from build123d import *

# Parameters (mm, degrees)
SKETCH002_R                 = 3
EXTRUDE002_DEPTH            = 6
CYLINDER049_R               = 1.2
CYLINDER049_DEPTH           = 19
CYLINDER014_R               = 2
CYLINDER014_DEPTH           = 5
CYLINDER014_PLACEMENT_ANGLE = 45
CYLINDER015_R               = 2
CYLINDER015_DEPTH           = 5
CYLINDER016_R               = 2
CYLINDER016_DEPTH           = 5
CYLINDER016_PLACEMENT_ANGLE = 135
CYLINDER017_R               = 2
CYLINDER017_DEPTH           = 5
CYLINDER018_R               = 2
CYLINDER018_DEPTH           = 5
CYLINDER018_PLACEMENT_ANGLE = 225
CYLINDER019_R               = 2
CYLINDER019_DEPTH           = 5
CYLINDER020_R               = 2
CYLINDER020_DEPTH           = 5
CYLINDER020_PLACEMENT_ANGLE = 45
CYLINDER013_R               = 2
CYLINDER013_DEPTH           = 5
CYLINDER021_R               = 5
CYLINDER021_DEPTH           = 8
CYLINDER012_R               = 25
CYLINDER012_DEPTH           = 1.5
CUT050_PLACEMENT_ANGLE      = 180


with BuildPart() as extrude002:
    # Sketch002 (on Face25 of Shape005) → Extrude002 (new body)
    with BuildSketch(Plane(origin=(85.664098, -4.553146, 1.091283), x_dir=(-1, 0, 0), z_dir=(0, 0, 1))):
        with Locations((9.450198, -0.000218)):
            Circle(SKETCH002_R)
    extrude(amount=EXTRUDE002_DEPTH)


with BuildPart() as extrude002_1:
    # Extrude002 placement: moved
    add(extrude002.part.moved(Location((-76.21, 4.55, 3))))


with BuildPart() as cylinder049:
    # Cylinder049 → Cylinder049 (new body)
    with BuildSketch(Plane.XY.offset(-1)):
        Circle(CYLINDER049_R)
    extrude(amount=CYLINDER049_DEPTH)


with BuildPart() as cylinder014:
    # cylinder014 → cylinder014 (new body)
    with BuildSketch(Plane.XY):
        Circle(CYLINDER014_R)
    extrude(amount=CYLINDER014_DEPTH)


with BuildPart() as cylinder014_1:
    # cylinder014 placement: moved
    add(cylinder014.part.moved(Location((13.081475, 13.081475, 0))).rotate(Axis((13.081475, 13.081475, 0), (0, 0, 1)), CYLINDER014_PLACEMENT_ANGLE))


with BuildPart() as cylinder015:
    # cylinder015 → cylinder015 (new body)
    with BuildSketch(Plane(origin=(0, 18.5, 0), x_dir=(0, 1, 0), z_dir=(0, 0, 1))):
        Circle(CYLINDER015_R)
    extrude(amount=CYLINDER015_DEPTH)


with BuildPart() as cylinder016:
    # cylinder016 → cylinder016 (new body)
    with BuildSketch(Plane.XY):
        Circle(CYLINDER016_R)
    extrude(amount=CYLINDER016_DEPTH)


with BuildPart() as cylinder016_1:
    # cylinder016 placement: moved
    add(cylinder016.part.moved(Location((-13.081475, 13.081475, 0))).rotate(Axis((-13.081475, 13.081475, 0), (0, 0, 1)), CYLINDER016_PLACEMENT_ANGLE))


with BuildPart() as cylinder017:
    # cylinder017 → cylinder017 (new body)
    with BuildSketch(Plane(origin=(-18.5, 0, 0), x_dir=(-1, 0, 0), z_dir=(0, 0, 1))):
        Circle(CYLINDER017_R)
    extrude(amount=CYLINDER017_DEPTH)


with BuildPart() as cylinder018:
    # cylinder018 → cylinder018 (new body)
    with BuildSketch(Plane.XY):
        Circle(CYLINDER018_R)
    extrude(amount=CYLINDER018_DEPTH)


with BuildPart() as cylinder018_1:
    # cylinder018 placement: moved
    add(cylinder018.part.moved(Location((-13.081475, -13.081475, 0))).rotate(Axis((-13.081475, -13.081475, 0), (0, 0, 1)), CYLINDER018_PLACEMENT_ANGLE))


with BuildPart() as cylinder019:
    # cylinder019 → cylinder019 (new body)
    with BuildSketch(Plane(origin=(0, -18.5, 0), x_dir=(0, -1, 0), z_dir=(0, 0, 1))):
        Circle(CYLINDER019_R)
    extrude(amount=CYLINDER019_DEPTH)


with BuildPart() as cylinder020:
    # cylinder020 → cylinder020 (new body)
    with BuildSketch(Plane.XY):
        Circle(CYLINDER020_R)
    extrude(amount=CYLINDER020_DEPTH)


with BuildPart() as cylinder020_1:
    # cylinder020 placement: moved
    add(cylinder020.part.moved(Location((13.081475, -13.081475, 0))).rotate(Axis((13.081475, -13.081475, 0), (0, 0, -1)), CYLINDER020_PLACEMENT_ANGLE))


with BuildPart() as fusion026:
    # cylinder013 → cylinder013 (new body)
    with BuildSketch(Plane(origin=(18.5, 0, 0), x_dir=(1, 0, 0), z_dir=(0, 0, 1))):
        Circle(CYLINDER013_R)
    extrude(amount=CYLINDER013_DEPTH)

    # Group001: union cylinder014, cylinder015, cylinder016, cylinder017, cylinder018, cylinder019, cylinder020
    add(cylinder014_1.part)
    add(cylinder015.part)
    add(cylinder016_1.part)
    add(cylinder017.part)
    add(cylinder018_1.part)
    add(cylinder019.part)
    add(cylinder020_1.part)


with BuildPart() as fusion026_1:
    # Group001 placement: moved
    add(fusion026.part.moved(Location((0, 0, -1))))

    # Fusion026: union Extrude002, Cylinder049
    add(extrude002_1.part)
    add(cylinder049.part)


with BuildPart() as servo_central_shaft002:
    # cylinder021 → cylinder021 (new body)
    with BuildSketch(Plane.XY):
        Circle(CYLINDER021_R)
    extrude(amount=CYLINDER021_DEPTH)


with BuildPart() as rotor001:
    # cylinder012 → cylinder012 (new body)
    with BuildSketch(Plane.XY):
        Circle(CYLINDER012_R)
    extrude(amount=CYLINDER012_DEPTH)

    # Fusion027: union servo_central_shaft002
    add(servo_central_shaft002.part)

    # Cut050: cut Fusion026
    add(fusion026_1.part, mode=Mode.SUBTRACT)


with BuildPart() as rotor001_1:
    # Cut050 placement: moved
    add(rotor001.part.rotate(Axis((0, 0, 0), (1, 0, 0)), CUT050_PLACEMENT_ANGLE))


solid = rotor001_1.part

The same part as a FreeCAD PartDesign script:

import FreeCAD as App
import Part
import Sketcher
Q = App.Units.Quantity

doc = App.newDocument("Part")
body = doc.addObject("PartDesign::Body", "Body")

# Sketch on XY plane
sketch1 = doc.addObject("Sketcher::SketchObject", "Sketch")
body.addObject(sketch1)
sketch1.AttachmentSupport = (doc.XY_Plane, [""])
sketch1.MapMode = "FlatFace"
sketch1.AttachmentOffset = App.Placement(App.Vector(0, 0, 1.091283), App.Rotation())
sketch1.addGeometry(Part.Circle(App.Vector(76.2139, -4.552928, 0), App.Vector(0, 0, 1), 3), False)
sketch1.addConstraint([
    Sketcher.Constraint("Diameter", 0, Q("6 mm")),
    Sketcher.Constraint("DistanceX", -1, 1, 0, 3, Q("76.2139 mm")),
    Sketcher.Constraint("DistanceY", 0, 3, -1, 1, Q("4.552928 mm")),
])
pad1 = doc.addObject("PartDesign::Pad", "Pad")
body.addObject(pad1)
pad1.Profile = sketch1
pad1.Length = 6
body2 = doc.addObject("PartDesign::Body", "Body001")
doc.recompute()

body.Placement = App.Placement(App.Vector(-76.21, 4.55, 3), App.Rotation(App.Vector(0, 0, 1), 0))
boolean = doc.addObject("PartDesign::Boolean", "Boolean")
body2.addObject(boolean)
boolean.Type = "Fuse"
boolean.addObjects([body])
body3 = doc.addObject("PartDesign::Body", "Body002")

# Sketch on XY plane
sketch2 = doc.addObject("Sketcher::SketchObject", "Sketch001")
body3.addObject(sketch2)
sketch2.AttachmentSupport = (doc.getObject("XY_Plane002"), [""])
sketch2.MapMode = "FlatFace"
sketch2.AttachmentOffset = App.Placement(App.Vector(0, 0, -1), App.Rotation())
sketch2.addGeometry(Part.Circle(App.Vector(0, 0, 0), App.Vector(0, 0, 1), 1.2), False)
sketch2.addConstraint([
    Sketcher.Constraint("Coincident", 0, 3, -1, 1),
    Sketcher.Constraint("Diameter", 0, Q("2.4 mm")),
])
pad2 = doc.addObject("PartDesign::Pad", "Pad001")
body3.addObject(pad2)
pad2.Profile = sketch2
pad2.Length = 19
body4 = doc.addObject("PartDesign::Body", "Body003")

# Sketch on XY plane
sketch3 = doc.addObject("Sketcher::SketchObject", "Sketch002")
body4.addObject(sketch3)
sketch3.AttachmentSupport = (doc.getObject("XY_Plane003"), [""])
sketch3.MapMode = "FlatFace"
sketch3.addGeometry(Part.Circle(App.Vector(0, 0, 0), App.Vector(0, 0, 1), 2), False)
sketch3.addConstraint([
    Sketcher.Constraint("Coincident", 0, 3, -1, 1),
    Sketcher.Constraint("Diameter", 0, Q("4 mm")),
])
pad3 = doc.addObject("PartDesign::Pad", "Pad002")
body4.addObject(pad3)
pad3.Profile = sketch3
pad3.Length = 5
body5 = doc.addObject("PartDesign::Body", "Body004")
doc.recompute()

body4.Placement = App.Placement(App.Vector(13.081475, 13.081475, 0), App.Rotation(App.Vector(0, 0, 1), 45))
boolean2 = doc.addObject("PartDesign::Boolean", "Boolean001")
body5.addObject(boolean2)
boolean2.Type = "Fuse"
boolean2.addObjects([body4])
body6 = doc.addObject("PartDesign::Body", "Body005")

# Sketch on XY plane
sketch4 = doc.addObject("Sketcher::SketchObject", "Sketch003")
body6.addObject(sketch4)
sketch4.AttachmentSupport = (doc.getObject("XY_Plane005"), [""])
sketch4.MapMode = "FlatFace"
sketch4.addGeometry(Part.Circle(App.Vector(0, 18.5, 0), App.Vector(0, 0, 1), 2), False)
sketch4.addConstraint([
    Sketcher.Constraint("PointOnObject", 0, 3, -2),
    Sketcher.Constraint("Diameter", 0, Q("4 mm")),
    Sketcher.Constraint("DistanceY", -1, 1, 0, 3, Q("18.5 mm")),
])
pad4 = doc.addObject("PartDesign::Pad", "Pad003")
body6.addObject(pad4)
pad4.Profile = sketch4
pad4.Length = 5
body7 = doc.addObject("PartDesign::Body", "Body006")

# Sketch on XY plane
sketch5 = doc.addObject("Sketcher::SketchObject", "Sketch004")
body7.addObject(sketch5)
sketch5.AttachmentSupport = (doc.getObject("XY_Plane006"), [""])
sketch5.MapMode = "FlatFace"
sketch5.addGeometry(Part.Circle(App.Vector(0, 0, 0), App.Vector(0, 0, 1), 2), False)
sketch5.addConstraint([
    Sketcher.Constraint("Coincident", 0, 3, -1, 1),
    Sketcher.Constraint("Diameter", 0, Q("4 mm")),
])
pad5 = doc.addObject("PartDesign::Pad", "Pad004")
body7.addObject(pad5)
pad5.Profile = sketch5
pad5.Length = 5
body8 = doc.addObject("PartDesign::Body", "Body007")
doc.recompute()

body7.Placement = App.Placement(App.Vector(-13.081475, 13.081475, 0), App.Rotation(App.Vector(0, 0, 1), 135))
boolean3 = doc.addObject("PartDesign::Boolean", "Boolean002")
body8.addObject(boolean3)
boolean3.Type = "Fuse"
boolean3.addObjects([body7])
body9 = doc.addObject("PartDesign::Body", "Body008")

# Sketch on XY plane
sketch6 = doc.addObject("Sketcher::SketchObject", "Sketch005")
body9.addObject(sketch6)
sketch6.AttachmentSupport = (doc.getObject("XY_Plane008"), [""])
sketch6.MapMode = "FlatFace"
sketch6.addGeometry(Part.Circle(App.Vector(-18.5, 0, 0), App.Vector(0, 0, 1), 2), False)
sketch6.addConstraint([
    Sketcher.Constraint("PointOnObject", 0, 3, -1),
    Sketcher.Constraint("Diameter", 0, Q("4 mm")),
    Sketcher.Constraint("DistanceX", 0, 3, -1, 1, Q("18.5 mm")),
])
pad6 = doc.addObject("PartDesign::Pad", "Pad005")
body9.addObject(pad6)
pad6.Profile = sketch6
pad6.Length = 5
body10 = doc.addObject("PartDesign::Body", "Body009")

# Sketch on XY plane
sketch7 = doc.addObject("Sketcher::SketchObject", "Sketch006")
body10.addObject(sketch7)
sketch7.AttachmentSupport = (doc.getObject("XY_Plane009"), [""])
sketch7.MapMode = "FlatFace"
sketch7.addGeometry(Part.Circle(App.Vector(0, 0, 0), App.Vector(0, 0, 1), 2), False)
sketch7.addConstraint([
    Sketcher.Constraint("Coincident", 0, 3, -1, 1),
    Sketcher.Constraint("Diameter", 0, Q("4 mm")),
])
pad7 = doc.addObject("PartDesign::Pad", "Pad006")
body10.addObject(pad7)
pad7.Profile = sketch7
pad7.Length = 5
body11 = doc.addObject("PartDesign::Body", "Body010")
doc.recompute()

body10.Placement = App.Placement(App.Vector(-13.081475, -13.081475, 0), App.Rotation(App.Vector(0, 0, 1), 225))
boolean4 = doc.addObject("PartDesign::Boolean", "Boolean003")
body11.addObject(boolean4)
boolean4.Type = "Fuse"
boolean4.addObjects([body10])
body12 = doc.addObject("PartDesign::Body", "Body011")

# Sketch on XY plane
sketch8 = doc.addObject("Sketcher::SketchObject", "Sketch007")
body12.addObject(sketch8)
sketch8.AttachmentSupport = (doc.getObject("XY_Plane011"), [""])
sketch8.MapMode = "FlatFace"
sketch8.addGeometry(Part.Circle(App.Vector(0, -18.5, 0), App.Vector(0, 0, 1), 2), False)
sketch8.addConstraint([
    Sketcher.Constraint("PointOnObject", 0, 3, -2),
    Sketcher.Constraint("Diameter", 0, Q("4 mm")),
    Sketcher.Constraint("DistanceY", 0, 3, -1, 1, Q("18.5 mm")),
])
pad8 = doc.addObject("PartDesign::Pad", "Pad007")
body12.addObject(pad8)
pad8.Profile = sketch8
pad8.Length = 5
body13 = doc.addObject("PartDesign::Body", "Body012")

# Sketch on XY plane
sketch9 = doc.addObject("Sketcher::SketchObject", "Sketch008")
body13.addObject(sketch9)
sketch9.AttachmentSupport = (doc.getObject("XY_Plane012"), [""])
sketch9.MapMode = "FlatFace"
sketch9.addGeometry(Part.Circle(App.Vector(0, 0, 0), App.Vector(0, 0, 1), 2), False)
sketch9.addConstraint([
    Sketcher.Constraint("Coincident", 0, 3, -1, 1),
    Sketcher.Constraint("Diameter", 0, Q("4 mm")),
])
pad9 = doc.addObject("PartDesign::Pad", "Pad008")
body13.addObject(pad9)
pad9.Profile = sketch9
pad9.Length = 5
body14 = doc.addObject("PartDesign::Body", "Body013")
doc.recompute()

body13.Placement = App.Placement(App.Vector(13.081475, -13.081475, 0), App.Rotation(App.Vector(0, 0, -1), 45))
boolean5 = doc.addObject("PartDesign::Boolean", "Boolean004")
body14.addObject(boolean5)
boolean5.Type = "Fuse"
boolean5.addObjects([body13])
body15 = doc.addObject("PartDesign::Body", "Body014")
body15.AllowCompound = True

# Sketch on XY plane
sketch10 = doc.addObject("Sketcher::SketchObject", "Sketch009")
body15.addObject(sketch10)
sketch10.AttachmentSupport = (doc.getObject("XY_Plane014"), [""])
sketch10.MapMode = "FlatFace"
sketch10.addGeometry(Part.Circle(App.Vector(18.5, 0, 0), App.Vector(0, 0, 1), 2), False)
sketch10.addConstraint([
    Sketcher.Constraint("PointOnObject", 0, 3, -1),
    Sketcher.Constraint("Diameter", 0, Q("4 mm")),
    Sketcher.Constraint("DistanceX", -1, 1, 0, 3, Q("18.5 mm")),
])
pad10 = doc.addObject("PartDesign::Pad", "Pad009")
body15.addObject(pad10)
pad10.Profile = sketch10
pad10.Length = 5
doc.recompute()

boolean6 = doc.addObject("PartDesign::Boolean", "Boolean005")
body15.addObject(boolean6)
boolean6.Type = "Fuse"
boolean6.addObjects([body5])
doc.recompute()

boolean7 = doc.addObject("PartDesign::Boolean", "Boolean006")
body15.addObject(boolean7)
boolean7.Type = "Fuse"
boolean7.addObjects([body6])
doc.recompute()

boolean8 = doc.addObject("PartDesign::Boolean", "Boolean007")
body15.addObject(boolean8)
boolean8.Type = "Fuse"
boolean8.addObjects([body8])
doc.recompute()

boolean9 = doc.addObject("PartDesign::Boolean", "Boolean008")
body15.addObject(boolean9)
boolean9.Type = "Fuse"
boolean9.addObjects([body9])
doc.recompute()

boolean10 = doc.addObject("PartDesign::Boolean", "Boolean009")
body15.addObject(boolean10)
boolean10.Type = "Fuse"
boolean10.addObjects([body11])
doc.recompute()

boolean11 = doc.addObject("PartDesign::Boolean", "Boolean010")
body15.addObject(boolean11)
boolean11.Type = "Fuse"
boolean11.addObjects([body12])
doc.recompute()

boolean12 = doc.addObject("PartDesign::Boolean", "Boolean011")
body15.addObject(boolean12)
boolean12.Type = "Fuse"
boolean12.addObjects([body14])
body16 = doc.addObject("PartDesign::Body", "Body015")
body16.AllowCompound = True
doc.recompute()

body15.Placement = App.Placement(App.Vector(0, 0, -1), App.Rotation(App.Vector(0, 0, 1), 0))
boolean13 = doc.addObject("PartDesign::Boolean", "Boolean012")
body16.addObject(boolean13)
boolean13.Type = "Fuse"
boolean13.addObjects([body15])
doc.recompute()

boolean14 = doc.addObject("PartDesign::Boolean", "Boolean013")
body16.addObject(boolean14)
boolean14.Type = "Fuse"
boolean14.addObjects([body2])
doc.recompute()

boolean15 = doc.addObject("PartDesign::Boolean", "Boolean014")
body16.addObject(boolean15)
boolean15.Type = "Fuse"
boolean15.addObjects([body3])
body17 = doc.addObject("PartDesign::Body", "Body016")

# Sketch on XY plane
sketch11 = doc.addObject("Sketcher::SketchObject", "Sketch010")
body17.addObject(sketch11)
sketch11.AttachmentSupport = (doc.getObject("XY_Plane016"), [""])
sketch11.MapMode = "FlatFace"
sketch11.addGeometry(Part.Circle(App.Vector(0, 0, 0), App.Vector(0, 0, 1), 5), False)
sketch11.addConstraint([
    Sketcher.Constraint("Coincident", 0, 3, -1, 1),
    Sketcher.Constraint("Diameter", 0, Q("10 mm")),
])
pad11 = doc.addObject("PartDesign::Pad", "Pad010")
body17.addObject(pad11)
pad11.Profile = sketch11
pad11.Length = 8
body18 = doc.addObject("PartDesign::Body", "Body017")

# Sketch on XY plane
sketch12 = doc.addObject("Sketcher::SketchObject", "Sketch011")
body18.addObject(sketch12)
sketch12.AttachmentSupport = (doc.getObject("XY_Plane017"), [""])
sketch12.MapMode = "FlatFace"
sketch12.addGeometry(Part.Circle(App.Vector(0, 0, 0), App.Vector(0, 0, 1), 25), False)
sketch12.addConstraint([
    Sketcher.Constraint("Coincident", 0, 3, -1, 1),
    Sketcher.Constraint("Diameter", 0, Q("50 mm")),
])
pad12 = doc.addObject("PartDesign::Pad", "Pad011")
body18.addObject(pad12)
pad12.Profile = sketch12
pad12.Length = 1.5
doc.recompute()

boolean16 = doc.addObject("PartDesign::Boolean", "Boolean015")
body18.addObject(boolean16)
boolean16.Type = "Fuse"
boolean16.addObjects([body17])
doc.recompute()

boolean17 = doc.addObject("PartDesign::Boolean", "Boolean016")
body18.addObject(boolean17)
boolean17.Type = "Cut"
boolean17.addObjects([body16])
body19 = doc.addObject("PartDesign::Body", "Body018")
doc.recompute()

body18.Placement = App.Placement(App.Vector(0, 0, 0), App.Rotation(App.Vector(1, 0, 0), 180))
boolean18 = doc.addObject("PartDesign::Boolean", "Boolean017")
body19.addObject(boolean18)
boolean18.Type = "Fuse"
boolean18.addObjects([body18])

doc.recompute()
